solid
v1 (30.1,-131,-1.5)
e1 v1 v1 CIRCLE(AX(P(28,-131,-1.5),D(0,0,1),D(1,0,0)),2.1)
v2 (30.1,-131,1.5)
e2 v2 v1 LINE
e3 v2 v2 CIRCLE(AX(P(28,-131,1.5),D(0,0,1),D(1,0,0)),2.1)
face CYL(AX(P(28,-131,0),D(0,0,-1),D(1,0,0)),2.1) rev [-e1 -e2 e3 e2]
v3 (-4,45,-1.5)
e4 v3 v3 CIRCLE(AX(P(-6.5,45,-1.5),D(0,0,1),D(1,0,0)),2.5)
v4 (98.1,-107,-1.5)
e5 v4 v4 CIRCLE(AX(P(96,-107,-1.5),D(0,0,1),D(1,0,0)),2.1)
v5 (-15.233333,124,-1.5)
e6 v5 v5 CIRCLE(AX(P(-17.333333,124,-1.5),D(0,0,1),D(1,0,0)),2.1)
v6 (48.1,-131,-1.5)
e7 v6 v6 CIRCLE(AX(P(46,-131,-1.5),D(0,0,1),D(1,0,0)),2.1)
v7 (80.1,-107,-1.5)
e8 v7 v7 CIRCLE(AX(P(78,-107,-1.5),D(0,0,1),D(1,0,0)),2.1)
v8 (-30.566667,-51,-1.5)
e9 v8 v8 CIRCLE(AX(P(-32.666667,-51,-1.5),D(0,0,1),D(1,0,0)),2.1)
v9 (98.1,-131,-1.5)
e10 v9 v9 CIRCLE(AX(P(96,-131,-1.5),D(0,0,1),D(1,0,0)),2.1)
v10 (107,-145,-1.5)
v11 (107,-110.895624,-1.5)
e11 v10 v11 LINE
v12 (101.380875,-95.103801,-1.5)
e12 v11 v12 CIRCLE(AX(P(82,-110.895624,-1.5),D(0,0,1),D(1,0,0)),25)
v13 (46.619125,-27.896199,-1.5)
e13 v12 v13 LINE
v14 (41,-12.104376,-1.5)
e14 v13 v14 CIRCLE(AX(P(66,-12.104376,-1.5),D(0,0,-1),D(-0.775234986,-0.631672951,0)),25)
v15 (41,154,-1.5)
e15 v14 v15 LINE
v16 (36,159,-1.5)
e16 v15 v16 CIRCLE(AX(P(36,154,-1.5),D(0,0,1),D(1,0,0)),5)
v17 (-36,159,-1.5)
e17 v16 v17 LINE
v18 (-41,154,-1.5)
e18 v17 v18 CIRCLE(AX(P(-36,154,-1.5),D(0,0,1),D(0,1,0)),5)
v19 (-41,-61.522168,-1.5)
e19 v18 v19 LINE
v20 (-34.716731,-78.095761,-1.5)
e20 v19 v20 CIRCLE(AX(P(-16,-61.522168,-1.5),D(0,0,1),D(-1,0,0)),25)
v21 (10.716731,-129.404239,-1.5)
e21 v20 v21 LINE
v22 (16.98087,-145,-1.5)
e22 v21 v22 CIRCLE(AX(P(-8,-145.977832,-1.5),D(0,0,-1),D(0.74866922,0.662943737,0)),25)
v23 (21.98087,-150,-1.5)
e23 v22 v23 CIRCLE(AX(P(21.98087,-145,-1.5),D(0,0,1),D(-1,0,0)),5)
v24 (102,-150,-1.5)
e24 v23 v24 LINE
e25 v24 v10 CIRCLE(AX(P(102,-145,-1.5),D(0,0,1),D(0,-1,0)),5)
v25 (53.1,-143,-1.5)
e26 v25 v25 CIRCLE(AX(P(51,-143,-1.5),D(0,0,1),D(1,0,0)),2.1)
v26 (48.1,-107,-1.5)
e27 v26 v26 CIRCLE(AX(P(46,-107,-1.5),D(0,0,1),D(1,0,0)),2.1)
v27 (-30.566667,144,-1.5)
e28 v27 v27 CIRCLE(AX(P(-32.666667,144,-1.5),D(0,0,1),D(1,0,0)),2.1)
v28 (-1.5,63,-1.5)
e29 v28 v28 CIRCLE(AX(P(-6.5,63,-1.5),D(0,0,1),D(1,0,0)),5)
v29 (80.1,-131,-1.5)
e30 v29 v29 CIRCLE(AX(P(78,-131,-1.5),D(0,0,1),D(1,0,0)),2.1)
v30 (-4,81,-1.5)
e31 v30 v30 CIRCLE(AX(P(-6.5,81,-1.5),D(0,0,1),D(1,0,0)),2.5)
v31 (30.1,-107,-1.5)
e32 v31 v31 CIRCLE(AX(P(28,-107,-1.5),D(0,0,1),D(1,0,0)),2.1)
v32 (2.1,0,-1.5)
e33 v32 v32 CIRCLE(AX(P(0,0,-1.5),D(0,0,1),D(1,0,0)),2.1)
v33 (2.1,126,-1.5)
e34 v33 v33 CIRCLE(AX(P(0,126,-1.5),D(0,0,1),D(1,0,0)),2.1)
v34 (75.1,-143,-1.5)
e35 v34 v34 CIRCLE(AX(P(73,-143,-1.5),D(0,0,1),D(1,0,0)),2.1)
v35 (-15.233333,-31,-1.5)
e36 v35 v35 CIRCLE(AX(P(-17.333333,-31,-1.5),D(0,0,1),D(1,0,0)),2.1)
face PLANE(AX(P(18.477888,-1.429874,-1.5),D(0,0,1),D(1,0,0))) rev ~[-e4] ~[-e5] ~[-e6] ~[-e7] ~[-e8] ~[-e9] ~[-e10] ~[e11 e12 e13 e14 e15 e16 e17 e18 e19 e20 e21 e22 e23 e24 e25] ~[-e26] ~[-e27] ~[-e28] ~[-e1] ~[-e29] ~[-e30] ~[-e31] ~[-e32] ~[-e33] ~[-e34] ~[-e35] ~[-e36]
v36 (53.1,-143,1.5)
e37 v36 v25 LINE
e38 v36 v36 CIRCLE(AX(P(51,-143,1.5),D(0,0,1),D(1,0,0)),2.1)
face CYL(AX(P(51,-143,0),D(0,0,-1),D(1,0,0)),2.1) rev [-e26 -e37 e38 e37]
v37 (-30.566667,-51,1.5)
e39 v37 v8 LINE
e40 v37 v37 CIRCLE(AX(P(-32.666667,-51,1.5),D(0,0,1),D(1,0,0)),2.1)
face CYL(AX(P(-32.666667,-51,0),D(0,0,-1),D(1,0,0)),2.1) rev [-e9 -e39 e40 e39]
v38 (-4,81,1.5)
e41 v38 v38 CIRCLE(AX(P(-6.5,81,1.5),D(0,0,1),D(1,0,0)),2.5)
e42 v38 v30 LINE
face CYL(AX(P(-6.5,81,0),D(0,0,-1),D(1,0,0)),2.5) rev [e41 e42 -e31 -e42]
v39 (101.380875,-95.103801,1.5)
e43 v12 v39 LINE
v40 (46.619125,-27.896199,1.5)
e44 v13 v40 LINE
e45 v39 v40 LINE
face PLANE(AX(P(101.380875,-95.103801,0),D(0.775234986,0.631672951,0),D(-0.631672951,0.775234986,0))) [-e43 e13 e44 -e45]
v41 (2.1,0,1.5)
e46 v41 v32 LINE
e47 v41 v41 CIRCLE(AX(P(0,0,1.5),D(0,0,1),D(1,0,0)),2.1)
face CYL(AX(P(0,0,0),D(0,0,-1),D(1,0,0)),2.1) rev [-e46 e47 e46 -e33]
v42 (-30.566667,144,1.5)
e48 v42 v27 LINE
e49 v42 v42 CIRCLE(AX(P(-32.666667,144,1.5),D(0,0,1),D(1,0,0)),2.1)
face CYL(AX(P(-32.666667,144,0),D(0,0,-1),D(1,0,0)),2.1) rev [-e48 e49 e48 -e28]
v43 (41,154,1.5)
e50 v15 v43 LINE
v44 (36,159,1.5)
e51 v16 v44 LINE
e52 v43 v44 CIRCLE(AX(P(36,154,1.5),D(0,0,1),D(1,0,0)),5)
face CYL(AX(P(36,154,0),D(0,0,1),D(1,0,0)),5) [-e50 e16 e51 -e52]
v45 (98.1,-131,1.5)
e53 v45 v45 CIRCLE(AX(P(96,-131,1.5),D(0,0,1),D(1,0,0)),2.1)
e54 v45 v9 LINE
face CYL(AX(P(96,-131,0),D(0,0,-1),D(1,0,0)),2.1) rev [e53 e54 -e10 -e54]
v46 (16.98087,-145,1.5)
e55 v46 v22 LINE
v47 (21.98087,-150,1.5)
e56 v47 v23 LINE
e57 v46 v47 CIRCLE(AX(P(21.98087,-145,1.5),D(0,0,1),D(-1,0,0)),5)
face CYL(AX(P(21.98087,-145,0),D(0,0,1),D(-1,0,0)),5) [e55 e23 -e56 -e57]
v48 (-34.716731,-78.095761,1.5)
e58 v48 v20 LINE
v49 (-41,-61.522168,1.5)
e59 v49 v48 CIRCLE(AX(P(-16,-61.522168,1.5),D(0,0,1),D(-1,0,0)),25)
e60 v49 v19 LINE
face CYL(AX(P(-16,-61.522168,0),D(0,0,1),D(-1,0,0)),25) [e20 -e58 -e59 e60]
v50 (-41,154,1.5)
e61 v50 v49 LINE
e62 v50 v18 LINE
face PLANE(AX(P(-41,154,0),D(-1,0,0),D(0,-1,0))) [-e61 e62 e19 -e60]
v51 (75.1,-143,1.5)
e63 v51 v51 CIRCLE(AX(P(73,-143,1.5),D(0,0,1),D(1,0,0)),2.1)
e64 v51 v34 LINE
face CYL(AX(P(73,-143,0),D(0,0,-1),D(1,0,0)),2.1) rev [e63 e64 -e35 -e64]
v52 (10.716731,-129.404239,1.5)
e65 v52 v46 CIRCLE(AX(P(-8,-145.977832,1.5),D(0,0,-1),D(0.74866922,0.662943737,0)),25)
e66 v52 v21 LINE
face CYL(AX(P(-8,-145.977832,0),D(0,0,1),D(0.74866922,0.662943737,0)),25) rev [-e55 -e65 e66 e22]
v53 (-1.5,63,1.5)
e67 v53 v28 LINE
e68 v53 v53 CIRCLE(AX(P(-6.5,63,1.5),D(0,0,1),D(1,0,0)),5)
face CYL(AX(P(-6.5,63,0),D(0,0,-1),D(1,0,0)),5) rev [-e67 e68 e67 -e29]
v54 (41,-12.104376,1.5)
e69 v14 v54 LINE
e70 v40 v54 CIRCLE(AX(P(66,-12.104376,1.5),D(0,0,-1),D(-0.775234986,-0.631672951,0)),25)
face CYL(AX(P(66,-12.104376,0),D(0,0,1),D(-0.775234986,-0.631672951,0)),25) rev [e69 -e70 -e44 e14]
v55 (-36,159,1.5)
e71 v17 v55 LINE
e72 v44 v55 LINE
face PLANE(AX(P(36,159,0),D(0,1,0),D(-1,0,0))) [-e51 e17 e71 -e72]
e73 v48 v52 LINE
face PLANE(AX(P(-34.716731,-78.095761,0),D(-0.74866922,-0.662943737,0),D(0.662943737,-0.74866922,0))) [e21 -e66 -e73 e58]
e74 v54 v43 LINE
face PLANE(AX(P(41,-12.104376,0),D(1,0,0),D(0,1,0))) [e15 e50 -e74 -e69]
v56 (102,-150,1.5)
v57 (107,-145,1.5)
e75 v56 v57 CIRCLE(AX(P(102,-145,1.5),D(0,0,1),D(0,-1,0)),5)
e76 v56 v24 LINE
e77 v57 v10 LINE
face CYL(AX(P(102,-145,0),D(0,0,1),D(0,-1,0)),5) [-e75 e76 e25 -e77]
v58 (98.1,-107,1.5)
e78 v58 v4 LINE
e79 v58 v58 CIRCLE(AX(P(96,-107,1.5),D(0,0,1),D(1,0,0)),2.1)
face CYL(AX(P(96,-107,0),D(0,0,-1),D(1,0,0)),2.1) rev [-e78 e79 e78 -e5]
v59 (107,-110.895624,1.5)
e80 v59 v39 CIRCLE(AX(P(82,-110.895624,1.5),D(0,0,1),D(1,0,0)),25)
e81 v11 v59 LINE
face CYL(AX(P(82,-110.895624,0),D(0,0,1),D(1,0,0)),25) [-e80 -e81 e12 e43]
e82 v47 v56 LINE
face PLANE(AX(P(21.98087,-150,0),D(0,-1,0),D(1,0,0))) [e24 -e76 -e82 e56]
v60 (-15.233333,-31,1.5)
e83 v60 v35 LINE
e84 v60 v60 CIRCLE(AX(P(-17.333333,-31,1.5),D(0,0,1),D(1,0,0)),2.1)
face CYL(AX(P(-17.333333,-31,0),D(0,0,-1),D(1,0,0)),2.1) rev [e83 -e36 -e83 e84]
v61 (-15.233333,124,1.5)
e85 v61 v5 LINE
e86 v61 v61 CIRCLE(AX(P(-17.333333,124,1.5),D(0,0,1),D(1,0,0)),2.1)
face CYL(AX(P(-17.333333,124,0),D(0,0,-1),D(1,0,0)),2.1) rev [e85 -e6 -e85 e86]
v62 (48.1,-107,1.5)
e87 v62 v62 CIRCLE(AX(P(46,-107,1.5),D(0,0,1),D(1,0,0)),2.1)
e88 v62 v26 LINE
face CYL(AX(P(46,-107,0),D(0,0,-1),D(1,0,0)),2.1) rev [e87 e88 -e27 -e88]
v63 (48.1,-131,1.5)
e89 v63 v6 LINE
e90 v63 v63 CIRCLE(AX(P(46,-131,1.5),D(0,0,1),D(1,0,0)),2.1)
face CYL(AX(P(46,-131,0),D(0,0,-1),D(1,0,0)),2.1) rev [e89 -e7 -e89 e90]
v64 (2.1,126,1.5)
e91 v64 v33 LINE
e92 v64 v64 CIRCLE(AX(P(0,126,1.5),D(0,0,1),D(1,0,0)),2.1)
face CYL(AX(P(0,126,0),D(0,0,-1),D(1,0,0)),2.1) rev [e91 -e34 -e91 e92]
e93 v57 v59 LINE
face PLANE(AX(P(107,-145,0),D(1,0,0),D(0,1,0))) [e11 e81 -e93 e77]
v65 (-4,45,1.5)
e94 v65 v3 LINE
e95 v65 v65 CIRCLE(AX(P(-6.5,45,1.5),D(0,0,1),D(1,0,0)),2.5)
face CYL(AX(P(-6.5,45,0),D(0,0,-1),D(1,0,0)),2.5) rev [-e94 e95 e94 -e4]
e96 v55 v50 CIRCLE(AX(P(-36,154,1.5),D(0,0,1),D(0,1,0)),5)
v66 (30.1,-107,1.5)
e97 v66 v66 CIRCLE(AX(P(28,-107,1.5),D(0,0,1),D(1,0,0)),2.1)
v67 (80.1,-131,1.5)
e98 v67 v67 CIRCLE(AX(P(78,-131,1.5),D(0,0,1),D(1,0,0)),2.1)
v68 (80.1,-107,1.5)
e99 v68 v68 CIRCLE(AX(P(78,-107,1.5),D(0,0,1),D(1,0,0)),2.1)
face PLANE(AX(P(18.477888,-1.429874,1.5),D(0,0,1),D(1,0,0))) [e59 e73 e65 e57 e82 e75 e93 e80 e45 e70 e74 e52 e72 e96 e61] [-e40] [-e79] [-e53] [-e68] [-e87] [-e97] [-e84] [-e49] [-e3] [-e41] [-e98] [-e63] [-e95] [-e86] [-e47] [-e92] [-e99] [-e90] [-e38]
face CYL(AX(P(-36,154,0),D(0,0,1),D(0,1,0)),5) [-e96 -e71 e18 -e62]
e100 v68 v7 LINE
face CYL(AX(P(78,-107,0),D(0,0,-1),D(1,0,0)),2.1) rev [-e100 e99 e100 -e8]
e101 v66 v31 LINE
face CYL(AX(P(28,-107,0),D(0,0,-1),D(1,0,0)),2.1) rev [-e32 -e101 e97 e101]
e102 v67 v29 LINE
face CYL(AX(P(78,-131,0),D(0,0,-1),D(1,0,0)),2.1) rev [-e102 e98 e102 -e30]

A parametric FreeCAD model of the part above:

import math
import FreeCAD as App
import Part
import Sketcher

doc = App.newDocument("Part")
body = doc.addObject("PartDesign::Body", "Body")

# Sketch on XY plane
sketch1 = doc.addObject("Sketcher::SketchObject", "Sketch")
body.addObject(sketch1)
sketch1.AttachmentSupport = (doc.XY_Plane, [""])
sketch1.MapMode = "FlatFace"
sketch1.addGeometry(Part.LineSegment(App.Vector(107, -145, 0), App.Vector(107, -110.9, 0)), False)
sketch1.addGeometry(Part.ArcOfCircle(Part.Circle(App.Vector(82, -110.9, 0), App.Vector(0, 0, 1), 25), math.radians(0), math.radians(39)), False)
sketch1.addGeometry(Part.LineSegment(App.Vector(101.4, -95.1, 0), App.Vector(46.6, -27.9, 0)), False)
sketch1.addGeometry(Part.ArcOfCircle(Part.Circle(App.Vector(66, -12.1, 0), App.Vector(0, 0, 1), 25), math.radians(-180), math.radians(-141)), False)
sketch1.addGeometry(Part.LineSegment(App.Vector(41, -12.1, 0), App.Vector(41, 154, 0)), False)
sketch1.addGeometry(Part.ArcOfCircle(Part.Circle(App.Vector(36, 154, 0), App.Vector(0, 0, 1), 5), math.radians(0), math.radians(90)), False)
sketch1.addGeometry(Part.LineSegment(App.Vector(36, 159, 0), App.Vector(-36, 159, 0)), False)
sketch1.addGeometry(Part.ArcOfCircle(Part.Circle(App.Vector(-36, 154, 0), App.Vector(0, 0, 1), 5), math.radians(90), math.radians(180)), False)
sketch1.addGeometry(Part.LineSegment(App.Vector(-41, 154, 0), App.Vector(-41, -61.5, 0)), False)
sketch1.addGeometry(Part.ArcOfCircle(Part.Circle(App.Vector(-16, -61.5, 0), App.Vector(0, 0, 1), 25), math.radians(180), math.radians(222)), False)
sketch1.addGeometry(Part.LineSegment(App.Vector(-34.7, -78.1, 0), App.Vector(10.7, -129.4, 0)), False)
sketch1.addGeometry(Part.ArcOfCircle(Part.Circle(App.Vector(-8, -146, 0), App.Vector(0, 0, 1), 25), math.radians(2), math.radians(42)), False)
sketch1.addGeometry(Part.ArcOfCircle(Part.Circle(App.Vector(22, -145, 0), App.Vector(0, 0, 1), 5), math.radians(180), math.radians(270)), False)
sketch1.addGeometry(Part.LineSegment(App.Vector(22, -150, 0), App.Vector(102, -150, 0)), False)
sketch1.addGeometry(Part.ArcOfCircle(Part.Circle(App.Vector(102, -145, 0), App.Vector(0, 0, 1), 5), math.radians(-90), math.radians(0)), False)
sketch1.addGeometry(Part.Circle(App.Vector(28, -131, 0), App.Vector(0, 0, 1), 2.1), False)
sketch1.addGeometry(Part.Circle(App.Vector(28, -107, 0), App.Vector(0, 0, 1), 2.1), False)
sketch1.addGeometry(Part.Circle(App.Vector(-32.7, -51, 0), App.Vector(0, 0, 1), 2.1), False)
sketch1.addGeometry(Part.Circle(App.Vector(-17.3, -31, 0), App.Vector(0, 0, 1), 2.1), False)
sketch1.addGeometry(Part.Circle(App.Vector(0, 0, 0), App.Vector(0, 0, 1), 2.1), False)
sketch1.addGeometry(Part.Circle(App.Vector(46, -131, 0), App.Vector(0, 0, 1), 2.1), False)
sketch1.addGeometry(Part.Circle(App.Vector(51, -143, 0), App.Vector(0, 0, 1), 2.1), False)
sketch1.addGeometry(Part.Circle(App.Vector(46, -107, 0), App.Vector(0, 0, 1), 2.1), False)
sketch1.addGeometry(Part.Circle(App.Vector(73, -143, 0), App.Vector(0, 0, 1), 2.1), False)
sketch1.addGeometry(Part.Circle(App.Vector(78, -131, 0), App.Vector(0, 0, 1), 2.1), False)
sketch1.addGeometry(Part.Circle(App.Vector(96, -131, 0), App.Vector(0, 0, 1), 2.1), False)
sketch1.addGeometry(Part.Circle(App.Vector(78, -107, 0), App.Vector(0, 0, 1), 2.1), False)
sketch1.addGeometry(Part.Circle(App.Vector(96, -107, 0), App.Vector(0, 0, 1), 2.1), False)
sketch1.addGeometry(Part.Circle(App.Vector(-6.5, 45, 0), App.Vector(0, 0, 1), 2.5), False)
sketch1.addGeometry(Part.Circle(App.Vector(-6.5, 63, 0), App.Vector(0, 0, 1), 5), False)
sketch1.addGeometry(Part.Circle(App.Vector(-6.5, 81, 0), App.Vector(0, 0, 1), 2.5), False)
sketch1.addGeometry(Part.Circle(App.Vector(-32.7, 144, 0), App.Vector(0, 0, 1), 2.1), False)
sketch1.addGeometry(Part.Circle(App.Vector(-17.3, 124, 0), App.Vector(0, 0, 1), 2.1), False)
sketch1.addGeometry(Part.Circle(App.Vector(0, 126, 0), App.Vector(0, 0, 1), 2.1), False)
sketch1.addConstraint(Sketcher.Constraint("Tangent", 0, 2, 1, 1))
sketch1.addConstraint(Sketcher.Constraint("Tangent", 1, 2, 2, 1))
sketch1.addConstraint(Sketcher.Constraint("Tangent", 2, 2, 3, 2))
sketch1.addConstraint(Sketcher.Constraint("Tangent", 3, 1, 4, 1))
sketch1.addConstraint(Sketcher.Constraint("Tangent", 4, 2, 5, 1))
sketch1.addConstraint(Sketcher.Constraint("Tangent", 5, 2, 6, 1))
sketch1.addConstraint(Sketcher.Constraint("Tangent", 6, 2, 7, 1))
sketch1.addConstraint(Sketcher.Constraint("Tangent", 7, 2, 8, 1))
sketch1.addConstraint(Sketcher.Constraint("Tangent", 8, 2, 9, 1))
sketch1.addConstraint(Sketcher.Constraint("Tangent", 9, 2, 10, 1))
sketch1.addConstraint(Sketcher.Constraint("Tangent", 10, 2, 11, 2))
sketch1.addConstraint(Sketcher.Constraint("Coincident", 11, 1, 12, 1))
sketch1.addConstraint(Sketcher.Constraint("Tangent", 12, 2, 13, 1))
sketch1.addConstraint(Sketcher.Constraint("Tangent", 13, 2, 14, 1))
sketch1.addConstraint(Sketcher.Constraint("Tangent", 14, 2, 0, 1))
sketch1.addConstraint(Sketcher.Constraint("Vertical", 0))
sketch1.addConstraint(Sketcher.Constraint("Vertical", 4))
sketch1.addConstraint(Sketcher.Constraint("Horizontal", 6))
sketch1.addConstraint(Sketcher.Constraint("Vertical", 8))
sketch1.addConstraint(Sketcher.Constraint("Horizontal", 13))
sketch1.addConstraint(Sketcher.Constraint("Coincident", 19, 3, -1, 1))
sketch1.addConstraint(Sketcher.Constraint("Equal", 1, 3))
sketch1.addConstraint(Sketcher.Constraint("Equal", 5, 7))
sketch1.addConstraint(Sketcher.Constraint("Equal", 3, 9))
sketch1.addConstraint(Sketcher.Constraint("Equal", 9, 11))
sketch1.addConstraint(Sketcher.Constraint("Equal", 7, 12))
sketch1.addConstraint(Sketcher.Constraint("Equal", 12, 14))
sketch1.addConstraint(Sketcher.Constraint("Equal", 15, 16))
sketch1.addConstraint(Sketcher.Constraint("Equal", 16, 17))
sketch1.addConstraint(Sketcher.Constraint("Equal", 17, 18))
sketch1.addConstraint(Sketcher.Constraint("Equal", 18, 19))
sketch1.addConstraint(Sketcher.Constraint("Equal", 19, 20))
sketch1.addConstraint(Sketcher.Constraint("Equal", 20, 21))
sketch1.addConstraint(Sketcher.Constraint("Equal", 21, 22))
sketch1.addConstraint(Sketcher.Constraint("Equal", 22, 23))
sketch1.addConstraint(Sketcher.Constraint("Equal", 23, 24))
sketch1.addConstraint(Sketcher.Constraint("Equal", 24, 25))
sketch1.addConstraint(Sketcher.Constraint("Equal", 25, 26))
sketch1.addConstraint(Sketcher.Constraint("Equal", 26, 27))
sketch1.addConstraint(Sketcher.Constraint("Equal", 14, 29))
sketch1.addConstraint(Sketcher.Constraint("Equal", 28, 30))
sketch1.addConstraint(Sketcher.Constraint("Equal", 27, 31))
sketch1.addConstraint(Sketcher.Constraint("Equal", 31, 32))
sketch1.addConstraint(Sketcher.Constraint("Equal", 32, 33))
sketch1.addConstraint(Sketcher.Constraint("PointOnObject", 33, 3, -2))
sketch1.addConstraint(Sketcher.Constraint("Horizontal", 15, 3, 20, 3))
sketch1.addConstraint(Sketcher.Constraint("Horizontal", 16, 3, 22, 3))
sketch1.addConstraint(Sketcher.Constraint("Horizontal", 21, 3, 23, 3))
sketch1.addConstraint(Sketcher.Constraint("Horizontal", 20, 3, 24, 3))
sketch1.addConstraint(Sketcher.Constraint("Horizontal", 24, 3, 25, 3))
sketch1.addConstraint(Sketcher.Constraint("Horizontal", 22, 3, 26, 3))
sketch1.addConstraint(Sketcher.Constraint("Horizontal", 26, 3, 27, 3))
sketch1.addConstraint(Sketcher.Constraint("Horizontal", 14, 3, 11, 1))
sketch1.addConstraint(Sketcher.Constraint("Vertical", 15, 3, 16, 3))
sketch1.addConstraint(Sketcher.Constraint("Vertical", 20, 3, 22, 3))
sketch1.addConstraint(Sketcher.Constraint("Vertical", 24, 3, 26, 3))
sketch1.addConstraint(Sketcher.Constraint("Vertical", 25, 3, 27, 3))
sketch1.addConstraint(Sketcher.Constraint("Vertical", 28, 3, 29, 3))
sketch1.addConstraint(Sketcher.Constraint("Vertical", 29, 3, 30, 3))
sketch1.addConstraint(Sketcher.Constraint("Vertical", 17, 3, 31, 3))
sketch1.addConstraint(Sketcher.Constraint("Vertical", 18, 3, 32, 3))
sketch1.addConstraint(Sketcher.Constraint("Diameter", 28, 5.0))
sketch1.addConstraint(Sketcher.Constraint("Diameter", 29, 10.0))
sketch1.addConstraint(Sketcher.Constraint("Radius", 1, 25.0))
sketch1.addConstraint(Sketcher.Constraint("Diameter", 15, 4.2))
sketch1.addConstraint(Sketcher.Constraint("DistanceX", 6, 2, 6, 1, 72.0))
sketch1.addConstraint(Sketcher.Constraint("DistanceX", -1, 1, 1, 3, 82.0))
sketch1.addConstraint(Sketcher.Constraint("DistanceX", -1, 1, 3, 3, 66.0))
sketch1.addConstraint(Sketcher.Constraint("DistanceY", -1, 1, 5, 3, 154.0))
sketch1.addConstraint(Sketcher.Constraint("DistanceX", 11, 3, -1, 1, 8.0))
sketch1.addConstraint(Sketcher.Constraint("DistanceY", 12, 3, -1, 1, 145.0))
sketch1.addConstraint(Sketcher.Constraint("DistanceX", -1, 1, 15, 3, 28.0))
sketch1.addConstraint(Sketcher.Constraint("DistanceY", 15, 3, -1, 1, 131.0))
sketch1.addConstraint(Sketcher.Constraint("DistanceY", 16, 3, -1, 1, 107.0))
sketch1.addConstraint(Sketcher.Constraint("DistanceY", 17, 3, -1, 1, 51.0))
sketch1.addConstraint(Sketcher.Constraint("DistanceY", 18, 3, -1, 1, 31.0))
sketch1.addConstraint(Sketcher.Constraint("DistanceX", -1, 1, 20, 3, 46.0))
sketch1.addConstraint(Sketcher.Constraint("DistanceX", -1, 1, 21, 3, 51.0))
sketch1.addConstraint(Sketcher.Constraint("DistanceY", 21, 3, -1, 1, 143.0))
sketch1.addConstraint(Sketcher.Constraint("DistanceX", -1, 1, 23, 3, 73.0))
sketch1.addConstraint(Sketcher.Constraint("DistanceX", -1, 1, 24, 3, 78.0))
sketch1.addConstraint(Sketcher.Constraint("DistanceX", -1, 1, 25, 3, 96.0))
sketch1.addConstraint(Sketcher.Constraint("DistanceY", -1, 1, 28, 3, 45.0))
sketch1.addConstraint(Sketcher.Constraint("DistanceY", -1, 1, 29, 3, 63.0))
sketch1.addConstraint(Sketcher.Constraint("DistanceY", -1, 1, 30, 3, 81.0))
sketch1.addConstraint(Sketcher.Constraint("DistanceY", -1, 1, 31, 3, 144.0))
sketch1.addConstraint(Sketcher.Constraint("DistanceY", -1, 1, 32, 3, 124.0))
sketch1.addConstraint(Sketcher.Constraint("DistanceY", -1, 1, 33, 3, 126.0))
sketch1.addConstraint(Sketcher.Constraint("DistanceX", 28, 3, -1, 1, 6.5))
sketch1.addConstraint(Sketcher.Constraint("Distance", 2, 86.6932))
sketch1.addConstraint(Sketcher.Constraint("DistanceX", 13, 1, 13, 2, 80.01913))
sketch1.addConstraint(Sketcher.Constraint("DistanceY", 1, 2, -1, 1, 95.103801))
sketch1.addConstraint(Sketcher.Constraint("DistanceY", 8, 2, 8, 1, 215.522168))
sketch1.addConstraint(Sketcher.Constraint("DistanceX", 18, 3, 2, 2, 63.952459))
sketch1.addConstraint(Sketcher.Constraint("DistanceX", 17, 3, -1, 1, 32.666667))
pad1 = doc.addObject("PartDesign::Pad", "Pad")
body.addObject(pad1)
pad1.Profile = sketch1
pad1.Length = 3
pad1.Midplane = True

doc.recompute()
